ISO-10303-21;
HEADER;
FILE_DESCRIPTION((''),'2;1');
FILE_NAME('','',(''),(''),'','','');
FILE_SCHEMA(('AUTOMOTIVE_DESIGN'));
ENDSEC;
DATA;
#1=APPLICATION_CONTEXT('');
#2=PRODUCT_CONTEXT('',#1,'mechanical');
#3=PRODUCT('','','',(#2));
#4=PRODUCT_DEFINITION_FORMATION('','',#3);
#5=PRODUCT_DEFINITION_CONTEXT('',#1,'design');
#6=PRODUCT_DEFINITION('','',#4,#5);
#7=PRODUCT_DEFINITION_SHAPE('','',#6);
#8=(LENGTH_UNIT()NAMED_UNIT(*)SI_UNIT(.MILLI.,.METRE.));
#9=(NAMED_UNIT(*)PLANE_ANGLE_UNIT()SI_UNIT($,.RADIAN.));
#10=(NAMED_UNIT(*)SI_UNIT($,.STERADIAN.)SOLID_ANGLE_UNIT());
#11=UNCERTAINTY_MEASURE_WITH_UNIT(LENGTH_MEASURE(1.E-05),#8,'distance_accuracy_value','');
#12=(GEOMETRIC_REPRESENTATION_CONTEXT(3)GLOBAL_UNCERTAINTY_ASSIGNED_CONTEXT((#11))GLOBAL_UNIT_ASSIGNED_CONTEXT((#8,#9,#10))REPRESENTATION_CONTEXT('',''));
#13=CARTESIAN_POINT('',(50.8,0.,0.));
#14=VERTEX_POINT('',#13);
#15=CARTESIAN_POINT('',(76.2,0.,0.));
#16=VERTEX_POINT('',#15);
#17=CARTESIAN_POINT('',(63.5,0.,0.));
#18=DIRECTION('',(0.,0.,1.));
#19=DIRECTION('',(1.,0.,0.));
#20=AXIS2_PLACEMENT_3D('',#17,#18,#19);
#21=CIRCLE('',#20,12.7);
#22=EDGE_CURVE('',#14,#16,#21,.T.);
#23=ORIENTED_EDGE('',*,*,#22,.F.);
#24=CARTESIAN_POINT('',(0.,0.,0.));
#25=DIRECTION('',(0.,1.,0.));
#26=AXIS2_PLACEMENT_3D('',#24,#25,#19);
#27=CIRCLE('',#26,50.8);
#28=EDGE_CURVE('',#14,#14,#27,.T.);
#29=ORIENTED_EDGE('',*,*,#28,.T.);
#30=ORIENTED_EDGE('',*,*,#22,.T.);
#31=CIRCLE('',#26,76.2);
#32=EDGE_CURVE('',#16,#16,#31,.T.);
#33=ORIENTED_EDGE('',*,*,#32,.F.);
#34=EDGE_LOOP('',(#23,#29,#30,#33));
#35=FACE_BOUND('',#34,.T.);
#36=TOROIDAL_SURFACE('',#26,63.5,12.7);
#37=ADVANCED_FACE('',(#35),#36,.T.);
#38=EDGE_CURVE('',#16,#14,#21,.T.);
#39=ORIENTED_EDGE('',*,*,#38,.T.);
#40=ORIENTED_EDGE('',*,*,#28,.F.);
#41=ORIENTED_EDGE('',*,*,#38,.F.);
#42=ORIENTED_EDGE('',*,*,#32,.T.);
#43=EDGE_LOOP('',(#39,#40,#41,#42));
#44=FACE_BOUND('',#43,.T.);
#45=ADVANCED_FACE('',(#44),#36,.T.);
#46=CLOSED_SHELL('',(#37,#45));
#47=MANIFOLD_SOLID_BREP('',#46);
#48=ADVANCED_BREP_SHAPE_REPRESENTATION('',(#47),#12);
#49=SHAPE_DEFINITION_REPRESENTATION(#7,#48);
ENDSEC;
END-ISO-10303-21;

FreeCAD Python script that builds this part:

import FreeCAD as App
import Part
import Sketcher
from FreeCAD import Vector
Q = App.Units.Quantity

doc = App.newDocument("Part")
params = doc.addObject("Spreadsheet::Sheet", "Params")
for row, (alias, value) in enumerate([
    ("sketch1_diameter", "1 in"),
    ("revolution_angle", "360 deg"),
], start=1):
    params.set(f"A{row}", alias)
    params.set(f"B{row}", "=" + value)
    params.setAlias(f"B{row}", alias)

body = doc.addObject("PartDesign::Body", "Body")

# Sketch on XY plane
sketch1 = doc.addObject("Sketcher::SketchObject", "Sketch")
body.addObject(sketch1)
sketch1.AttachmentSupport = (doc.XY_Plane, [""])
sketch1.MapMode = "FlatFace"
sketch1.addGeometry(Part.Circle(Vector(64, 0, 0), Vector(0, 0, 1), 13), False)
sketch1.addConstraint([
    Sketcher.Constraint("PointOnObject", 0, 3, -1),
    Sketcher.Constraint("Diameter", 0, Q("1 in")),
    Sketcher.Constraint("DistanceX", -1, 1, 0, 3, Q("2.5 in")),
])
sketch1.setExpression("Constraints[1]", "Params.sketch1_diameter")
revolution = doc.addObject("PartDesign::Revolution", "Revolution")
body.addObject(revolution)
revolution.Profile = sketch1
revolution.ReferenceAxis = (sketch1, ["V_Axis"])
revolution.setExpression("Angle", "Params.revolution_angle")

doc.recompute()
